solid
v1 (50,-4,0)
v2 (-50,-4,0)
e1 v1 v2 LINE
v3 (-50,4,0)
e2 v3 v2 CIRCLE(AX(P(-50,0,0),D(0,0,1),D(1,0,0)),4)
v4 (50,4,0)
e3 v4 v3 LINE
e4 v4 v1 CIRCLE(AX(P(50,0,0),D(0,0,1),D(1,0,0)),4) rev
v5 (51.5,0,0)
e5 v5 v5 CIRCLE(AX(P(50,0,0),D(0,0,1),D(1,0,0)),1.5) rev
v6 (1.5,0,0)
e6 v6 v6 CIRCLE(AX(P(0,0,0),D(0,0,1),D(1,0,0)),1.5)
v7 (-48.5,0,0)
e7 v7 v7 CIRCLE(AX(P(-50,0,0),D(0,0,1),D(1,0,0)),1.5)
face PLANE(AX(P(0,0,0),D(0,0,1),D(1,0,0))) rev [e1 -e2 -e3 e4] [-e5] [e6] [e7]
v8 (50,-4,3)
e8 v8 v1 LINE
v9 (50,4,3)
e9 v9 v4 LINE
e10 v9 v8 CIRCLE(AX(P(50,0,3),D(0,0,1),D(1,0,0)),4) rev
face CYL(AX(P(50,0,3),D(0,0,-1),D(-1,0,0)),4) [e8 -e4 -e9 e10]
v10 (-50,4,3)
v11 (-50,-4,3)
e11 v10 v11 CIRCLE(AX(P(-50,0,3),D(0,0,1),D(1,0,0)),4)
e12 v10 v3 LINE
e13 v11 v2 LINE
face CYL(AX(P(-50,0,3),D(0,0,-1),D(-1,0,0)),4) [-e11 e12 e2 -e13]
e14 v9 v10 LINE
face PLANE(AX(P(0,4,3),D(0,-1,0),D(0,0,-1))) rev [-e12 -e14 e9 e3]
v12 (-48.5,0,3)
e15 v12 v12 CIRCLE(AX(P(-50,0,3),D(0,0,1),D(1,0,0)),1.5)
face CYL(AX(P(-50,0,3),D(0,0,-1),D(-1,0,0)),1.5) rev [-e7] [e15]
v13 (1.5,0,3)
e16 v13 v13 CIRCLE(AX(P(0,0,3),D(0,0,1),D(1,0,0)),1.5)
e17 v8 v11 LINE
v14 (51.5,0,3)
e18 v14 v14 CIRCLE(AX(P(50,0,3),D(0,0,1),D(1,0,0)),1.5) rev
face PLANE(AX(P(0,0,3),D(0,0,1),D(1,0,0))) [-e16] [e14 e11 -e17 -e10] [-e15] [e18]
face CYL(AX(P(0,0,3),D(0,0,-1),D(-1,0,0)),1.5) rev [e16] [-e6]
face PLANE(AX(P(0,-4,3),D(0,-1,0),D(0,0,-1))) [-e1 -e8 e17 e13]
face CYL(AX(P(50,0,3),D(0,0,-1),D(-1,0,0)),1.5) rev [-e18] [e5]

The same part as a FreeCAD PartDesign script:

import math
import FreeCAD as App
import Part
import Sketcher

V = App.Vector
Q = App.Units.Quantity

doc = App.newDocument("Part")
params = doc.addObject("Spreadsheet::Sheet", "Params")
for row, (alias, value) in enumerate([
    ("sketch1_diameter", "3 mm"),
    ("sketch1_radius", "4 mm"),
    ("sketch1_width", "100 mm"),
    ("pad1_length", "3 mm"),
], start=1):
    params.set(f"A{row}", alias)
    params.set(f"B{row}", "=" + value)
    params.setAlias(f"B{row}", alias)

body = doc.addObject("PartDesign::Body", "Body")

sketch1 = body.newObject("Sketcher::SketchObject", "Sketch")
sketch1.AttachmentSupport = (doc.getObject("XY_Plane"), [""])
sketch1.MapMode = "FlatFace"
sketch1.addGeometry(Part.LineSegment(V(-50, -4, 0), V(50, -4, 0)), False)
sketch1.addGeometry(Part.ArcOfCircle(Part.Circle(V(50, 0, 0), V(0, 0, 1), 4), math.radians(-90), math.radians(90)), False)
sketch1.addGeometry(Part.LineSegment(V(50, 4, 0), V(-50, 4, 0)), False)
sketch1.addGeometry(Part.ArcOfCircle(Part.Circle(V(-50, 0, 0), V(0, 0, 1), 4), math.radians(90), math.radians(270)), False)
sketch1.addGeometry(Part.Circle(V(-50, 0, 0), V(0, 0, 1), 1.5), False)
sketch1.addGeometry(Part.Circle(V(0, 0, 0), V(0, 0, 1), 1.5), False)
sketch1.addGeometry(Part.Circle(V(50, 0, 0), V(0, 0, 1), 1.5), False)
sketch1.addConstraint(Sketcher.Constraint("Tangent", 0, 2, 1, 1))
sketch1.addConstraint(Sketcher.Constraint("Tangent", 1, 2, 2, 1))
sketch1.addConstraint(Sketcher.Constraint("Tangent", 2, 2, 3, 1))
sketch1.addConstraint(Sketcher.Constraint("Tangent", 3, 2, 0, 1))
sketch1.addConstraint(Sketcher.Constraint("Horizontal", 0))
sketch1.addConstraint(Sketcher.Constraint("Horizontal", 2))
sketch1.addConstraint(Sketcher.Constraint("Coincident", 5, 3, -1, 1))
sketch1.addConstraint(Sketcher.Constraint("Coincident", 4, 3, 3, 3))
sketch1.addConstraint(Sketcher.Constraint("Coincident", 6, 3, 1, 3))
sketch1.addConstraint(Sketcher.Constraint("Equal", 4, 5))
sketch1.addConstraint(Sketcher.Constraint("Equal", 5, 6))
sketch1.addConstraint(Sketcher.Constraint("Symmetric", 1, 3, 3, 3, -1, 1))
sketch1.addConstraint(Sketcher.Constraint("Diameter", 4, Q("3 mm")))
sketch1.addConstraint(Sketcher.Constraint("Radius", 1, Q("4 mm")))
sketch1.addConstraint(Sketcher.Constraint("DistanceX", 0, 1, 0, 2, Q("100 mm")))
sketch1.setExpression("Constraints[12]", "Params.sketch1_diameter")
sketch1.setExpression("Constraints[13]", "Params.sketch1_radius")
sketch1.setExpression("Constraints[14]", "Params.sketch1_width")
pad1 = body.newObject("PartDesign::Pad", "Pad")
pad1.Profile = sketch1
pad1.setExpression("Length", "Params.pad1_length")

doc.recompute()
